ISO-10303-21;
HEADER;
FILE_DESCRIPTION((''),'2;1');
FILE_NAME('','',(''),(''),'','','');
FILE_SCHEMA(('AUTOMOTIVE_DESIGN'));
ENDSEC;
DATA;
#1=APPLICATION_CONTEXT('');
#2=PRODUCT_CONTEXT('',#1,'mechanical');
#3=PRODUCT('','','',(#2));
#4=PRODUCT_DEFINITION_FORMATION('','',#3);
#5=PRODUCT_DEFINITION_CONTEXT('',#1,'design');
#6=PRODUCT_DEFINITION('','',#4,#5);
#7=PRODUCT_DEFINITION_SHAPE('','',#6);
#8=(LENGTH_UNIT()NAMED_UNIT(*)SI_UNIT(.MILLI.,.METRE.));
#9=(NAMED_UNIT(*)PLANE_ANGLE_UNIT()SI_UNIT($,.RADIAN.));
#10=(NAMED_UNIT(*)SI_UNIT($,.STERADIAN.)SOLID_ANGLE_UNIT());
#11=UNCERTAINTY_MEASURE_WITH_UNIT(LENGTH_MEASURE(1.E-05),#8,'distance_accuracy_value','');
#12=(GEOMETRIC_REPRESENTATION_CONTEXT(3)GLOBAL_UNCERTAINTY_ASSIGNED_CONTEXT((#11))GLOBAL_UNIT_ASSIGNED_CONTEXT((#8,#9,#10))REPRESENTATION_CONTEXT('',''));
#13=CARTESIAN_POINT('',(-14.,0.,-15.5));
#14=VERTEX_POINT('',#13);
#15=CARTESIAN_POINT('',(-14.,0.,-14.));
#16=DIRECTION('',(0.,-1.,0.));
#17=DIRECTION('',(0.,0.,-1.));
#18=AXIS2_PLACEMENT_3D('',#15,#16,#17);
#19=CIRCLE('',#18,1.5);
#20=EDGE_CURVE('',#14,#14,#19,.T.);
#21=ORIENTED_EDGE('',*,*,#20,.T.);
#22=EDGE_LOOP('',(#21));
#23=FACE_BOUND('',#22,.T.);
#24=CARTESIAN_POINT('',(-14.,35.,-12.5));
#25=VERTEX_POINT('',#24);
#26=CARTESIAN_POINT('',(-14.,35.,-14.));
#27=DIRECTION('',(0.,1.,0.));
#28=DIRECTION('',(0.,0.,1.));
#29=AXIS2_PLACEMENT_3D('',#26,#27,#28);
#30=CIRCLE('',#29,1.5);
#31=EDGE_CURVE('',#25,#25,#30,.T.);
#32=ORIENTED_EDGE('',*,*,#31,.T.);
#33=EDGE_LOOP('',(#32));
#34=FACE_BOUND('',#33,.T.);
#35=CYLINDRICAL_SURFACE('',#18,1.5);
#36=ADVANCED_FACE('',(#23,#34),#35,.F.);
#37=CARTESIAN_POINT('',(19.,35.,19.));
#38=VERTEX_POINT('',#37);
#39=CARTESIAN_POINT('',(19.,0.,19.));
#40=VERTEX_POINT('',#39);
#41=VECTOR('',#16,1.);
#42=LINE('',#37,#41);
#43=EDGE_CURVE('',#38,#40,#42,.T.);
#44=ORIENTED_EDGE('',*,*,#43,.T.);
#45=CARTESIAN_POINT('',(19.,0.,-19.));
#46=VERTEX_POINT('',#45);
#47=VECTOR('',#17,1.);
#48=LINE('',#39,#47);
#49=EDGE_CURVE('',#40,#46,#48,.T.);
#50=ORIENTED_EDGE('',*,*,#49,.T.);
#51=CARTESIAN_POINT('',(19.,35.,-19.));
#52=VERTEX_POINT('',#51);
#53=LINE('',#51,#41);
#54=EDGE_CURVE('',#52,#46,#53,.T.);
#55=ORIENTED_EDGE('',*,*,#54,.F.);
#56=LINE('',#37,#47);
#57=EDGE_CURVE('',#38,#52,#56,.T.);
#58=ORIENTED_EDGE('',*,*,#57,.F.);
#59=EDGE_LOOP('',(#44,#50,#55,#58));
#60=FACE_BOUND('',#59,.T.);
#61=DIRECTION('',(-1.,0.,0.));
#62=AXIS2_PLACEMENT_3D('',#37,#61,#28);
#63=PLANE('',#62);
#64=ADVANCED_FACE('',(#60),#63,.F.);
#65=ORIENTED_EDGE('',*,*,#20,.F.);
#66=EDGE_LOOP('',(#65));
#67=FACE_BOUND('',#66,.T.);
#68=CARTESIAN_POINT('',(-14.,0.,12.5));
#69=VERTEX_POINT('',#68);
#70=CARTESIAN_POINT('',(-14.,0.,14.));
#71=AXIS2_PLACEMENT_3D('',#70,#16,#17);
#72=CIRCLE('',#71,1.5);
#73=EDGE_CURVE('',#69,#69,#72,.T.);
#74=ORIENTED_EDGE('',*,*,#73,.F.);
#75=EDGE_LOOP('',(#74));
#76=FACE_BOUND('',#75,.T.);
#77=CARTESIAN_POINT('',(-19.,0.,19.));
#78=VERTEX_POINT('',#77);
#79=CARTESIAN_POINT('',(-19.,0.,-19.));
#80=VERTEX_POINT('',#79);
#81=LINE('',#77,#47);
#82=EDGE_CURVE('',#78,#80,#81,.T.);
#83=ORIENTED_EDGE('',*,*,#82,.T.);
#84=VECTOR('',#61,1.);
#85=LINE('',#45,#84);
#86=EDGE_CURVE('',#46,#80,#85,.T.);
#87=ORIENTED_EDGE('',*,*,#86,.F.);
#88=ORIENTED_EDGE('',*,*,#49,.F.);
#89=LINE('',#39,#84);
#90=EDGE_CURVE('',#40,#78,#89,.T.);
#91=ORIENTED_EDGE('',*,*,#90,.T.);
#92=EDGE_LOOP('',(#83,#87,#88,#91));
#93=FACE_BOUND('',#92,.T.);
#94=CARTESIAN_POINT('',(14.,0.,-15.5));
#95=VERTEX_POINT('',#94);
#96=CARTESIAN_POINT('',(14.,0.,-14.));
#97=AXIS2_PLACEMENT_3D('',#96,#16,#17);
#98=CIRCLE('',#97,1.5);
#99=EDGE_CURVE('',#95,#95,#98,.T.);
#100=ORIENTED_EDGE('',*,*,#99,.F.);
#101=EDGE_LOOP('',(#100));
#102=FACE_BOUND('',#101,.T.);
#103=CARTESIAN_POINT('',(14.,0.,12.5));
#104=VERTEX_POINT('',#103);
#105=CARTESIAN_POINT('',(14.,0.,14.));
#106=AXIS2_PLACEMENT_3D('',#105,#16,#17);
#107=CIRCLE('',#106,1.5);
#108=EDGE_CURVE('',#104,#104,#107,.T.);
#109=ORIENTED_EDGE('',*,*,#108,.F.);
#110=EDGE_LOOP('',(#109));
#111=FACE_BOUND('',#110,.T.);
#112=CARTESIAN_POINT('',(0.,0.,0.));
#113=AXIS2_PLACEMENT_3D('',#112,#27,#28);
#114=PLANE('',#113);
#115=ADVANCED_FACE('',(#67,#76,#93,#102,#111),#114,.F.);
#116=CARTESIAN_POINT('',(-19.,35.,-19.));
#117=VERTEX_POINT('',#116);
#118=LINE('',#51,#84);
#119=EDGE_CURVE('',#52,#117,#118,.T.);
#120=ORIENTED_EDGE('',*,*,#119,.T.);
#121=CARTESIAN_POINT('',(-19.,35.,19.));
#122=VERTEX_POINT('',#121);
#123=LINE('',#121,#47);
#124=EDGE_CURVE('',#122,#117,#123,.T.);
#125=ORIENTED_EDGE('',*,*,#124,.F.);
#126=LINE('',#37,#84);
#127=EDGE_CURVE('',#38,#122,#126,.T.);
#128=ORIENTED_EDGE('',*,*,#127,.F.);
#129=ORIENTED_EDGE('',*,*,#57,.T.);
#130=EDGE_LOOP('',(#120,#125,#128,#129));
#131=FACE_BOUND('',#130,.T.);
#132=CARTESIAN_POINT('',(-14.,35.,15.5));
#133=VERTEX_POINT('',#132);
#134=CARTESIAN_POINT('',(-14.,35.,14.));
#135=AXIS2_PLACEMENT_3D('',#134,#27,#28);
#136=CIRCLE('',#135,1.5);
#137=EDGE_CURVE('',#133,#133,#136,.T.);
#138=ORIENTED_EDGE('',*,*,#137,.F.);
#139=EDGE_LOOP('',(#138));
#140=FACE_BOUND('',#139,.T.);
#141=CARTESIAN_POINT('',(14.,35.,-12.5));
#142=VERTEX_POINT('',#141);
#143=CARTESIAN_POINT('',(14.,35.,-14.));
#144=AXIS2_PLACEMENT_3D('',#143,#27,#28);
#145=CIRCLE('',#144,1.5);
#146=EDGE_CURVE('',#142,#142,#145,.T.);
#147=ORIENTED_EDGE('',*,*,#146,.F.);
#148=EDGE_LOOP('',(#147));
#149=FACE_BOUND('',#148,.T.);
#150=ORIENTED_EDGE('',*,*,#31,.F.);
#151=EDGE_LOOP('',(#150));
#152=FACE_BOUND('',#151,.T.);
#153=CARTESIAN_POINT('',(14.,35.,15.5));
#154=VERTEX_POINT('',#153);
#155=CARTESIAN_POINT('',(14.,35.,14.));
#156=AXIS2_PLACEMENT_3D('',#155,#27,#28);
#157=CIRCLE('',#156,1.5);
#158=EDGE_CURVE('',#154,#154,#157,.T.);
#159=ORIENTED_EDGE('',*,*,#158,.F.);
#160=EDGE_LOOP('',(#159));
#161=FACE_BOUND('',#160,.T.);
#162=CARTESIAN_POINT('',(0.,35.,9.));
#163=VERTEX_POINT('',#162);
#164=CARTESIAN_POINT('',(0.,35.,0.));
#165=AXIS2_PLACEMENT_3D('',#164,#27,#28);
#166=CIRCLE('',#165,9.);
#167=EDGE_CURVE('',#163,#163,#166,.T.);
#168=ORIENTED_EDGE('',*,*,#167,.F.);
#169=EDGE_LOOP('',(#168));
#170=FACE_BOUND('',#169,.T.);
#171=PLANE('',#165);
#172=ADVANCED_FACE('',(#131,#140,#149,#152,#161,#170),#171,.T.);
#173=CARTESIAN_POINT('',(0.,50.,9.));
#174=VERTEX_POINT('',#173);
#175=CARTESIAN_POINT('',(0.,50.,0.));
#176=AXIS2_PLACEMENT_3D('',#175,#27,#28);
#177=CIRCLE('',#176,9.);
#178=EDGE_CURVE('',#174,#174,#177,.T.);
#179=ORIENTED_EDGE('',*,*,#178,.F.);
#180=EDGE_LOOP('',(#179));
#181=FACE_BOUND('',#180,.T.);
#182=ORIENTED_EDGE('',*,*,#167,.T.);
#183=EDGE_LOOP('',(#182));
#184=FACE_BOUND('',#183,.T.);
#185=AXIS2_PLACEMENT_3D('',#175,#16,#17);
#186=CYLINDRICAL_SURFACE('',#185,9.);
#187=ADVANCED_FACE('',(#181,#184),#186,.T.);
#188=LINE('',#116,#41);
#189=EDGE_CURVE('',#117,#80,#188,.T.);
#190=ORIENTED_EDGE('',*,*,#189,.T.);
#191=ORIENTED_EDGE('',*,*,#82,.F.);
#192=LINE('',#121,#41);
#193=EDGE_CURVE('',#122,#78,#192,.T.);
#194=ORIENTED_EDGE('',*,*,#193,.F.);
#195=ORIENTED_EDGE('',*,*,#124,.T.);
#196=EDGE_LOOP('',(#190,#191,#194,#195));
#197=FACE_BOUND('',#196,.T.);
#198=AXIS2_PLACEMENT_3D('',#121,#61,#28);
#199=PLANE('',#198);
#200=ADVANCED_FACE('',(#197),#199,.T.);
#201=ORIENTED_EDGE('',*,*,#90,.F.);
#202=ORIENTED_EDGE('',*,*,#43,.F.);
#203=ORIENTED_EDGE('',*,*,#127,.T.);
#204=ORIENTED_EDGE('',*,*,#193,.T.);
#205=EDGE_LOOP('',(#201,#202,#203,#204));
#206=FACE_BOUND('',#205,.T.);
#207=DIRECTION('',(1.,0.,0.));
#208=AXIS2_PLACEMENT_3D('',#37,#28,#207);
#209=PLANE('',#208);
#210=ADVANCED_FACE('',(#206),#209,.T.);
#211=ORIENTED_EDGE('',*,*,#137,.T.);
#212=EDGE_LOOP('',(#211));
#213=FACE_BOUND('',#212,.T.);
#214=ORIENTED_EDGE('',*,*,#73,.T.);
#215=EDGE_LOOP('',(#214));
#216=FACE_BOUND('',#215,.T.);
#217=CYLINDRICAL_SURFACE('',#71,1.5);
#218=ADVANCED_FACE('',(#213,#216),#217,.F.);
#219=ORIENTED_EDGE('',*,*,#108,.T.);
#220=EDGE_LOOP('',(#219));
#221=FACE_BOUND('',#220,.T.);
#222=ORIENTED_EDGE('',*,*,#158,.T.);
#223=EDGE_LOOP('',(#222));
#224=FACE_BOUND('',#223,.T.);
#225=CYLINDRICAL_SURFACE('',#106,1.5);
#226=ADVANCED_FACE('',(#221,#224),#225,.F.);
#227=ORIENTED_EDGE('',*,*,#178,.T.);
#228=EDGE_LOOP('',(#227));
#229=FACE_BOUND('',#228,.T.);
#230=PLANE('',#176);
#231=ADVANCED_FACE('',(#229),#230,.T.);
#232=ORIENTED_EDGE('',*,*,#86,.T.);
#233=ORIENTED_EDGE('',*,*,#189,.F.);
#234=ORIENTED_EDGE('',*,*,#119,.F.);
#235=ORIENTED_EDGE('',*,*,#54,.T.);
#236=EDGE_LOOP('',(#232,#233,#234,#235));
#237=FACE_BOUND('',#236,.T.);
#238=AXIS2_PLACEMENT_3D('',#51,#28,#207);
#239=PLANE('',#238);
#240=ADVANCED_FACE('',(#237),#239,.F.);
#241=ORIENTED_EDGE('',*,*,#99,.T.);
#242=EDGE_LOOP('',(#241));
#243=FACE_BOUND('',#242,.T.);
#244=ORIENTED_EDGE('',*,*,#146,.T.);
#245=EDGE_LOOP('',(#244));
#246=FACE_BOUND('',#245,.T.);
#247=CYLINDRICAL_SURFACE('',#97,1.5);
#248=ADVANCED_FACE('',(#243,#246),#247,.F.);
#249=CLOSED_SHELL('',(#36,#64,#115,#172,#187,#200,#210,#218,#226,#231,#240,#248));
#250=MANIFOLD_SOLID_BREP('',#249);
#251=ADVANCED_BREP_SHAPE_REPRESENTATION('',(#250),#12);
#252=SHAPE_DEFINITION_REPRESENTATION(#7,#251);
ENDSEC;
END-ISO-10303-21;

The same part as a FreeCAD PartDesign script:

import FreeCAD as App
import Part
import Sketcher
from FreeCAD import Vector

doc = App.newDocument("Part")
body = doc.addObject("PartDesign::Body", "Body")

# Sketch on XZ plane
sketch1 = doc.addObject("Sketcher::SketchObject", "Sketch")
body.addObject(sketch1)
sketch1.AttachmentSupport = (doc.XZ_Plane, [""])
sketch1.MapMode = "FlatFace"
sketch1.addGeometry([
    Part.LineSegment(Vector(-19, -19, 0), Vector(-19, 19, 0)),
    Part.LineSegment(Vector(-19, 19, 0), Vector(19, 19, 0)),
    Part.LineSegment(Vector(19, 19, 0), Vector(19, -19, 0)),
    Part.LineSegment(Vector(19, -19, 0), Vector(-19, -19, 0)),
], False)
sketch1.addConstraint([
    Sketcher.Constraint("Coincident", 0, 2, 1, 1),
    Sketcher.Constraint("Coincident", 1, 2, 2, 1),
    Sketcher.Constraint("Coincident", 2, 2, 3, 1),
    Sketcher.Constraint("Coincident", 3, 2, 0, 1),
    Sketcher.Constraint("Vertical", 0),
    Sketcher.Constraint("Horizontal", 1),
    Sketcher.Constraint("Vertical", 2),
    Sketcher.Constraint("Horizontal", 3),
    Sketcher.Constraint("Symmetric", 0, 2, 2, 2, -1, 1),
    Sketcher.Constraint("Equal", 3, 0),
    Sketcher.Constraint("DistanceX", 1, 1, 1, 2, 38.0),
])
pad1 = doc.addObject("PartDesign::Pad", "Pad")
body.addObject(pad1)
pad1.Profile = sketch1
pad1.Length = 35
pad1.Reversed = True

# Sketch on XZ plane
sketch2 = doc.addObject("Sketcher::SketchObject", "Sketch001")
body.addObject(sketch2)
sketch2.AttachmentSupport = (doc.XZ_Plane, [""])
sketch2.MapMode = "FlatFace"
sketch2.AttachmentOffset = App.Placement(Vector(0, 0, -35), App.Rotation())
sketch2.addGeometry(Part.Circle(Vector(0, 0, 0), Vector(0, 0, 1), 9), False)
sketch2.addConstraint([
    Sketcher.Constraint("Coincident", 0, 3, -1, 1),
    Sketcher.Constraint("Diameter", 0, 18.0),
])
pad2 = doc.addObject("PartDesign::Pad", "Pad001")
body.addObject(pad2)
pad2.Profile = sketch2
pad2.Length = 15
pad2.Reversed = True

# Sketch on XZ plane
sketch3 = doc.addObject("Sketcher::SketchObject", "Sketch002")
body.addObject(sketch3)
sketch3.AttachmentSupport = (doc.XZ_Plane, [""])
sketch3.MapMode = "FlatFace"
sketch3.addGeometry([
    Part.Circle(Vector(14, 14, 0), Vector(0, 0, 1), 1.5),
    Part.Circle(Vector(14, -14, 0), Vector(0, 0, 1), 1.5),
    Part.Circle(Vector(-14, -14, 0), Vector(0, 0, 1), 1.5),
    Part.Circle(Vector(-14, 14, 0), Vector(0, 0, 1), 1.5),
], False)
sketch3.addConstraint([
    Sketcher.Constraint("Equal", 0, 1),
    Sketcher.Constraint("Equal", 1, 2),
    Sketcher.Constraint("Equal", 2, 3),
    Sketcher.Constraint("Symmetric", 0, 3, 2, 3, -1, 1),
    Sketcher.Constraint("Symmetric", 1, 3, 3, 3, -1, 1),
    Sketcher.Constraint("Symmetric", 1, 3, 2, 3, -2),
    Sketcher.Constraint("Diameter", 0, 3.0),
    Sketcher.Constraint("DistanceX", -1, 1, 0, 3, 14.0),
    Sketcher.Constraint("DistanceY", -1, 1, 0, 3, 14.0),
])
doc.recompute()
hole = doc.addObject("PartDesign::Hole", "Hole")
body.addObject(hole)
hole.Profile = sketch3
hole.ThreadType = "None"
hole.Diameter = 3
hole.DepthType = "ThroughAll"

doc.recompute()
